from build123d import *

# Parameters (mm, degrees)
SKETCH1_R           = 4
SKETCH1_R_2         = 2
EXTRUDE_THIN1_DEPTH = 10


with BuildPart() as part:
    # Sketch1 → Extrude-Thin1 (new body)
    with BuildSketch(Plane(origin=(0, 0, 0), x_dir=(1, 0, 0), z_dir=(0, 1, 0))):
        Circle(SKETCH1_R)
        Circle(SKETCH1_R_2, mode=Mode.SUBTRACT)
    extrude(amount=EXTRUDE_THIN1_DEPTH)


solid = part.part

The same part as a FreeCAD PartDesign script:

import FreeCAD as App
import Part
import Sketcher

V = App.Vector
Q = App.Units.Quantity

doc = App.newDocument("Part")
body = doc.addObject("PartDesign::Body", "Body")

sketch1 = body.newObject("Sketcher::SketchObject", "Sketch")
sketch1.AttachmentSupport = (doc.getObject("XZ_Plane"), [""])
sketch1.MapMode = "FlatFace"
sketch1.addGeometry([
    Part.Circle(V(0, 0, 0), V(0, 0, 1), 4),
    Part.Circle(V(0, 0, 0), V(0, 0, 1), 2),
], False)
sketch1.addConstraint([
    Sketcher.Constraint("Coincident", 0, 3, -1, 1),
    Sketcher.Constraint("Coincident", 1, 3, -1, 1),
    Sketcher.Constraint("Diameter", 0, Q("8 mm")),
    Sketcher.Constraint("Diameter", 1, Q("4 mm")),
])
pad1 = body.newObject("PartDesign::Pad", "Pad")
pad1.Profile = sketch1
pad1.Length = 10
pad1.Reversed = True

doc.recompute()
